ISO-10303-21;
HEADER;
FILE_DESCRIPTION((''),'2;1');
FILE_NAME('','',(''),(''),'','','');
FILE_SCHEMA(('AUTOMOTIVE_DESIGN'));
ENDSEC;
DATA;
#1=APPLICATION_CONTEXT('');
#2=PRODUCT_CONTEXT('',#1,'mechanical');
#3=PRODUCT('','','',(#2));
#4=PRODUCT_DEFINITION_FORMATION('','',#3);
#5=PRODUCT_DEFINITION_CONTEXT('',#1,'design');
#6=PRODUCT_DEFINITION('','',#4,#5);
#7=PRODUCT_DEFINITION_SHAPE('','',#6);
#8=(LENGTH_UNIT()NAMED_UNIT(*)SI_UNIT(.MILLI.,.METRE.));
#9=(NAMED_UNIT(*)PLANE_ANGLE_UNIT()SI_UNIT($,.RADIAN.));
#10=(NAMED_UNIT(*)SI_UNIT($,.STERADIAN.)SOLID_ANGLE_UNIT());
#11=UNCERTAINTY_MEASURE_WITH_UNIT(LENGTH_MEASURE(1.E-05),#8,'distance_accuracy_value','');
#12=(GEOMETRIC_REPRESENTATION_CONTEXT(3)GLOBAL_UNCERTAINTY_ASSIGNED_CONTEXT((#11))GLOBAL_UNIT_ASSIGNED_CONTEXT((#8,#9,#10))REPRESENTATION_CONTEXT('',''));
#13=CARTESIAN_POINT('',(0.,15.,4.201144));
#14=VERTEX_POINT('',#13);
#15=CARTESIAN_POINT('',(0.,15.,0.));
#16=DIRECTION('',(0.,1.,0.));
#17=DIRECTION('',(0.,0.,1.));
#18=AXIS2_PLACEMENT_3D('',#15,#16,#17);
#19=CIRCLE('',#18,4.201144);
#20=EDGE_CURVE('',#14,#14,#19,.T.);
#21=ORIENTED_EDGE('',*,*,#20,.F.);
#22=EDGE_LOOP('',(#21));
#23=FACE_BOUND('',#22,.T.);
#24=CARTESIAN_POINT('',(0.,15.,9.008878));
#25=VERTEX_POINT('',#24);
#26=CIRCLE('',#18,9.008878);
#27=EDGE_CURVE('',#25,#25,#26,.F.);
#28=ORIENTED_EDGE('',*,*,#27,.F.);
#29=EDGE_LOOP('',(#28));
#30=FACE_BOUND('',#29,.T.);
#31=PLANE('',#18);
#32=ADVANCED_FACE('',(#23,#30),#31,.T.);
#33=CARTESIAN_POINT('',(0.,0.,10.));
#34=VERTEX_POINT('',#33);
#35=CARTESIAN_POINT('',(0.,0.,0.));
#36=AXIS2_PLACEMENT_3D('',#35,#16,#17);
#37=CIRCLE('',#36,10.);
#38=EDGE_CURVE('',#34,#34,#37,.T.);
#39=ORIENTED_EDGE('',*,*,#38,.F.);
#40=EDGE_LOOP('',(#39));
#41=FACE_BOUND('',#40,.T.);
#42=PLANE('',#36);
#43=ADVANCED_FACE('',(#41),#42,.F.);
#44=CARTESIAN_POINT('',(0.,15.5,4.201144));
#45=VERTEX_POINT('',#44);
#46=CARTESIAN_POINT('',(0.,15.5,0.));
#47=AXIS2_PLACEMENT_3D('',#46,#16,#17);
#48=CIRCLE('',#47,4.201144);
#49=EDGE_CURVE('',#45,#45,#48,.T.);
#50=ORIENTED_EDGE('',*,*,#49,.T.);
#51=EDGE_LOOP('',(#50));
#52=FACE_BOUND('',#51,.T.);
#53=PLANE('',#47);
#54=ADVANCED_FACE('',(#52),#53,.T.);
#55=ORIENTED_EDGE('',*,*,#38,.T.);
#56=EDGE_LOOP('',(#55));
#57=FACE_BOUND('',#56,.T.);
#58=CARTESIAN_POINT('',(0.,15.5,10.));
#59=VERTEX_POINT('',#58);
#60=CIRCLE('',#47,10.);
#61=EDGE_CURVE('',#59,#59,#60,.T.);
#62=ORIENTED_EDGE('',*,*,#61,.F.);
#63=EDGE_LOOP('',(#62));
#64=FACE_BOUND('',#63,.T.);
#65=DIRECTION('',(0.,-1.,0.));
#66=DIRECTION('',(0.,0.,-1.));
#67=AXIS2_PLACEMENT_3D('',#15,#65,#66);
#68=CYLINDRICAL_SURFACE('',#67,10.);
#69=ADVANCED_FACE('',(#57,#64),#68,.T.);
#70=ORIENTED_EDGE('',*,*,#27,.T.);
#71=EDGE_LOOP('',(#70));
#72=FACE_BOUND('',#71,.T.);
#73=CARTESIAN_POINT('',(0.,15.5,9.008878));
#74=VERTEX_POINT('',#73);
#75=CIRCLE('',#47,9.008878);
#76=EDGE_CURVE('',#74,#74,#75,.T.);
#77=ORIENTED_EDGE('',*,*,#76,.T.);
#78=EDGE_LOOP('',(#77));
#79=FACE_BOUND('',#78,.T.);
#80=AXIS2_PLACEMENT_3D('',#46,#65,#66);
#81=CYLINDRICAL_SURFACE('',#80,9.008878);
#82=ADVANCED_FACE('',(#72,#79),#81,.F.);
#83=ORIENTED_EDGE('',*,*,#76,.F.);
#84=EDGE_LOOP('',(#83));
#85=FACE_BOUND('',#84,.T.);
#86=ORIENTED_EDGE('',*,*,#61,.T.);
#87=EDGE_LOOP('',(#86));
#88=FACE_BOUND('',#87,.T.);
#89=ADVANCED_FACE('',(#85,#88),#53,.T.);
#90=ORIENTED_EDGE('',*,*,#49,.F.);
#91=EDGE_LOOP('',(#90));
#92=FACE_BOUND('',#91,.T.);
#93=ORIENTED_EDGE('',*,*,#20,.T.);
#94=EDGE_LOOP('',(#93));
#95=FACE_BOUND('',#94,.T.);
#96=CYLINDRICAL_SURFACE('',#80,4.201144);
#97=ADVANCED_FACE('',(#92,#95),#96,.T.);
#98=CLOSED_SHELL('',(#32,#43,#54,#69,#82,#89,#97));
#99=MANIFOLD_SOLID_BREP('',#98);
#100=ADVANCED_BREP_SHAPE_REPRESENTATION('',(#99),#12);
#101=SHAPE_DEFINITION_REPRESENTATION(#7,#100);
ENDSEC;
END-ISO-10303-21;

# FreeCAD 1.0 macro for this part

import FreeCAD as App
import Part
import Sketcher

V = App.Vector

doc = App.newDocument("Part")
body = doc.addObject("PartDesign::Body", "Body")

sketch1 = doc.addObject("Sketcher::SketchObject", "Sketch")
body.addObject(sketch1)
sketch1.AttachmentSupport = (doc.XZ_Plane, [""])
sketch1.MapMode = "FlatFace"
sketch1.addGeometry(Part.Circle(V(0, 0, 0), V(0, 0, 1), 10), False)
sketch1.addConstraint(Sketcher.Constraint("Coincident", 0, 3, -1, 1))
sketch1.addConstraint(Sketcher.Constraint("Diameter", 0, 20.0))
pad1 = doc.addObject("PartDesign::Pad", "Pad")
body.addObject(pad1)
pad1.Profile = sketch1
pad1.Length = 15
pad1.Reversed = True

sketch2 = doc.addObject("Sketcher::SketchObject", "Sketch001")
body.addObject(sketch2)
sketch2.AttachmentSupport = (doc.XZ_Plane, [""])
sketch2.MapMode = "FlatFace"
sketch2.AttachmentOffset = App.Placement(V(0, 0, -15), App.Rotation())
sketch2.addGeometry(Part.Circle(V(0, 0, 0), V(0, 0, 1), 10), False)
sketch2.addGeometry(Part.Circle(V(0, 0, 0), V(0, 0, 1), 9), False)
sketch2.addConstraint(Sketcher.Constraint("Coincident", 0, 3, -1, 1))
sketch2.addConstraint(Sketcher.Constraint("Coincident", 1, 3, -1, 1))
sketch2.addConstraint(Sketcher.Constraint("Diameter", 0, 20.0))
sketch2.addConstraint(Sketcher.Constraint("Diameter", 1, 18.017756))
pad2 = doc.addObject("PartDesign::Pad", "Pad001")
body.addObject(pad2)
pad2.Profile = sketch2
pad2.Length = 0.5
pad2.Reversed = True

sketch3 = doc.addObject("Sketcher::SketchObject", "Sketch002")
body.addObject(sketch3)
sketch3.AttachmentSupport = (doc.XZ_Plane, [""])
sketch3.MapMode = "FlatFace"
sketch3.AttachmentOffset = App.Placement(V(0, 0, -15), App.Rotation())
sketch3.addGeometry(Part.Circle(V(0, 0, 0), V(0, 0, 1), 4.2), False)
sketch3.addConstraint(Sketcher.Constraint("Coincident", 0, 3, -1, 1))
sketch3.addConstraint(Sketcher.Constraint("Diameter", 0, 8.402288))
pad3 = doc.addObject("PartDesign::Pad", "Pad002")
body.addObject(pad3)
pad3.Profile = sketch3
pad3.Length = 0.5
pad3.Reversed = True

doc.recompute()
